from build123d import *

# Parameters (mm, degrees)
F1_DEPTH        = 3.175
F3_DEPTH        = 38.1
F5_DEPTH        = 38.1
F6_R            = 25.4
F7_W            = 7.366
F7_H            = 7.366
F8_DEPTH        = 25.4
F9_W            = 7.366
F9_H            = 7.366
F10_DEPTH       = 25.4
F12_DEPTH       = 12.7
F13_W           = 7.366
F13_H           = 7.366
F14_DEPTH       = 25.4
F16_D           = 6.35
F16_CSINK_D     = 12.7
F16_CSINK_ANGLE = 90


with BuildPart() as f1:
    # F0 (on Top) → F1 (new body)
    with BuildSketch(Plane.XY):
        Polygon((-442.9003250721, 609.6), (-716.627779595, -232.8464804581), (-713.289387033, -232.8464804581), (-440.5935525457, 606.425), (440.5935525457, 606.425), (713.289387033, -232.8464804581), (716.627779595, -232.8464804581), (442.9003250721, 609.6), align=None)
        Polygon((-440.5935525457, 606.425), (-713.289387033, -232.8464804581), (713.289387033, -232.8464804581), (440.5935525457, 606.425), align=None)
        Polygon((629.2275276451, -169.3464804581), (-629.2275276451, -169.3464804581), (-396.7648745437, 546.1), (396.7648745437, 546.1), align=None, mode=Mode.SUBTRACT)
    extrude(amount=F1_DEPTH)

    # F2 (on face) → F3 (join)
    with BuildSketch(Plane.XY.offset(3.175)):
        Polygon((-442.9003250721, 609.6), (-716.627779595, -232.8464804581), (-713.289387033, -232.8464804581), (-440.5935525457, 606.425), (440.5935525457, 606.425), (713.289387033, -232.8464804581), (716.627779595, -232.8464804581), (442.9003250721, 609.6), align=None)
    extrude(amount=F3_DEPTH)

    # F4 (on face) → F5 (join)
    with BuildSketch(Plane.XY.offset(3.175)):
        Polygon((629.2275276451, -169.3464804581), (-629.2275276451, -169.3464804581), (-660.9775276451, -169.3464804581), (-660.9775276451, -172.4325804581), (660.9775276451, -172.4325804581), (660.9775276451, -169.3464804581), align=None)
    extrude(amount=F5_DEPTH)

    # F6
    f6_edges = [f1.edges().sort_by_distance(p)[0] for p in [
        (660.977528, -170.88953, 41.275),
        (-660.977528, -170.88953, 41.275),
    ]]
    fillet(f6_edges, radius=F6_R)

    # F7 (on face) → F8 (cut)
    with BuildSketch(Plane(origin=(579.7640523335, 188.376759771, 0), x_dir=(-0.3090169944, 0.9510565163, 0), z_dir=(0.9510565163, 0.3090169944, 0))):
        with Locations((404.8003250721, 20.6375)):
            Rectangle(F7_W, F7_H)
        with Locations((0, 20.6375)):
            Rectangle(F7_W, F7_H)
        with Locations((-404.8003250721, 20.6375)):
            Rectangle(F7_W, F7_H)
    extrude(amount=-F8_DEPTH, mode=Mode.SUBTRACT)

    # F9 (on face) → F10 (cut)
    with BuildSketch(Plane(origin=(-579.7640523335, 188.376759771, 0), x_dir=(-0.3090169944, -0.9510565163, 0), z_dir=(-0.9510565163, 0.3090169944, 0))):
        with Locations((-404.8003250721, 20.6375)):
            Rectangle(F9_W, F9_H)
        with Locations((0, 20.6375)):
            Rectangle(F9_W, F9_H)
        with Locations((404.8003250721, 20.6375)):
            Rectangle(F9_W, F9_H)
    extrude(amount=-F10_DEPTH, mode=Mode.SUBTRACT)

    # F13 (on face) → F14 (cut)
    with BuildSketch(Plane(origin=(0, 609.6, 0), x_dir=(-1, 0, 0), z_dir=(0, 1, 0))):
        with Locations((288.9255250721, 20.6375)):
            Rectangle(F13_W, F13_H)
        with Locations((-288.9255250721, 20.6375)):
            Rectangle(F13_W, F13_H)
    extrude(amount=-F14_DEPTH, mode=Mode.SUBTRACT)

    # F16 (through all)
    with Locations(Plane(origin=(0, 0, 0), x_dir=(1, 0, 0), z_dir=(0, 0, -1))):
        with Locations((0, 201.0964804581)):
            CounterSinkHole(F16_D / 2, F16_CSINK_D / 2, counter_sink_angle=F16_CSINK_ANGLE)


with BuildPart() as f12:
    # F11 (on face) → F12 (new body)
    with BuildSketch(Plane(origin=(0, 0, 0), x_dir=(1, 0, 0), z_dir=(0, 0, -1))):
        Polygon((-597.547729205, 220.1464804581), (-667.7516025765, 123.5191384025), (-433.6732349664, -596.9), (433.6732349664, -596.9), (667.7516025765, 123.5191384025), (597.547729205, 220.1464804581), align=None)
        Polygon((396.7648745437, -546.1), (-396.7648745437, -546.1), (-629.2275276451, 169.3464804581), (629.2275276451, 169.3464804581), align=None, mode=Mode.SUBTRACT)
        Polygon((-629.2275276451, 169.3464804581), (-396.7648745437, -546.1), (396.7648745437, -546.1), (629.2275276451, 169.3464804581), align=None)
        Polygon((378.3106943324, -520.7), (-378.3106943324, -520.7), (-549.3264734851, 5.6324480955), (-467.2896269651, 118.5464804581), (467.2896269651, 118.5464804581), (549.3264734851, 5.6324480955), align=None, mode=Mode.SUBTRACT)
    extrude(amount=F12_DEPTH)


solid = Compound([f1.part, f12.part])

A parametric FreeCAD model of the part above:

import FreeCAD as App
import Part
import Sketcher
from FreeCAD import Vector
Q = App.Units.Quantity


def edges_at(feature, points):
    """Names of the edges that pass closest to the given points."""
    edges = feature.Shape.Edges
    near = lambda p: min(range(len(edges)), key=lambda i: edges[i].distToShape(Part.Vertex(*p))[0])
    return sorted({f"Edge{near(p) + 1}" for p in points})

doc = App.newDocument("Part")
body = doc.addObject("PartDesign::Body", "Body")

# Sketch on XY plane
sketch1 = body.newObject("Sketcher::SketchObject", "Sketch")
sketch1.AttachmentSupport = (doc.getObject("XY_Plane"), [""])
sketch1.MapMode = "FlatFace"
sketch1.addGeometry([
    Part.LineSegment(Vector(-442.900325, 609.6, 0), Vector(-716.62778, -232.84648, 0)),  # 0
    Part.LineSegment(Vector(-716.62778, -232.84648, 0), Vector(716.62778, -232.84648, 0)),  # 1
    Part.LineSegment(Vector(716.62778, -232.84648, 0), Vector(442.900325, 609.6, 0)),  # 2
    Part.LineSegment(Vector(442.900325, 609.6, 0), Vector(-442.900325, 609.6, 0)),  # 3
    Part.LineSegment(Vector(396.764875, 546.1, 0), Vector(629.227528, -169.34648, 0)),  # 4
    Part.LineSegment(Vector(629.227528, -169.34648, 0), Vector(-629.227528, -169.34648, 0)),  # 5
    Part.LineSegment(Vector(-629.227528, -169.34648, 0), Vector(-396.764875, 546.1, 0)),  # 6
    Part.LineSegment(Vector(-396.764875, 546.1, 0), Vector(396.764875, 546.1, 0)),  # 7
], False)
sketch1.addConstraint([
    Sketcher.Constraint("Coincident", 0, 2, 1, 1),
    Sketcher.Constraint("Coincident", 1, 2, 2, 1),
    Sketcher.Constraint("Coincident", 2, 2, 3, 1),
    Sketcher.Constraint("Coincident", 3, 2, 0, 1),
    Sketcher.Constraint("Coincident", 4, 2, 5, 1),
    Sketcher.Constraint("Coincident", 5, 2, 6, 1),
    Sketcher.Constraint("Coincident", 6, 2, 7, 1),
    Sketcher.Constraint("Coincident", 7, 2, 4, 1),
    Sketcher.Constraint("Horizontal", 1),
    Sketcher.Constraint("Horizontal", 3),
    Sketcher.Constraint("Horizontal", 5),
    Sketcher.Constraint("Horizontal", 7),
    Sketcher.Constraint("Parallel", 2, 4),
    Sketcher.Constraint("Parallel", 0, 6),
    Sketcher.Constraint("Equal", 0, 2),
    Sketcher.Constraint("DistanceY", -1, 1, 2, 2, Q("24 in")),
    Sketcher.Constraint("Angle", 0, Q("-108 deg")),
    Sketcher.Constraint("DistanceY", -1, 1, 6, 2, Q("21.5 in")),
    Sketcher.Constraint("DistanceY", 1, 2, 4, 2, Q("2.5 in")),
    Sketcher.Constraint("DistanceX", 1, 1, 1, 2, 1433.255559),
    Sketcher.Constraint("DistanceX", 3, 2, 3, 1, 885.80065),
    Sketcher.Constraint("DistanceX", 7, 1, 7, 2, 793.529749),
    Sketcher.Constraint("DistanceX", 6, 2, 2, 2, 839.6652),
    Sketcher.Constraint("DistanceX", 0, 2, -1, 1, 716.62778),
])
pad1 = body.newObject("PartDesign::Pad", "Pad")
pad1.Profile = sketch1
pad1.Length = Q("0.125 in")

# Sketch on XY plane
sketch2 = body.newObject("Sketcher::SketchObject", "Sketch001")
sketch2.AttachmentSupport = (doc.getObject("XY_Plane"), [""])
sketch2.MapMode = "FlatFace"
sketch2.AttachmentOffset = App.Placement(Vector(0, 0, 0.125 * 25.4), App.Rotation())
sketch2.addGeometry([
    Part.LineSegment(Vector(-442.900325, 609.6, 0), Vector(-716.62778, -232.84648, 0)),  # 0
    Part.LineSegment(Vector(-716.62778, -232.84648, 0), Vector(-713.289387, -232.84648, 0)),  # 1
    Part.LineSegment(Vector(-713.289387, -232.84648, 0), Vector(-440.593553, 606.425, 0)),  # 2
    Part.LineSegment(Vector(-440.593553, 606.425, 0), Vector(440.593553, 606.425, 0)),  # 3
    Part.LineSegment(Vector(440.593553, 606.425, 0), Vector(713.289387, -232.84648, 0)),  # 4
    Part.LineSegment(Vector(713.289387, -232.84648, 0), Vector(716.62778, -232.84648, 0)),  # 5
    Part.LineSegment(Vector(716.62778, -232.84648, 0), Vector(442.900325, 609.6, 0)),  # 6
    Part.LineSegment(Vector(442.900325, 609.6, 0), Vector(-442.900325, 609.6, 0)),  # 7
], False)
sketch2.addConstraint([
    Sketcher.Constraint("Coincident", 0, 2, 1, 1),
    Sketcher.Constraint("Coincident", 1, 2, 2, 1),
    Sketcher.Constraint("Coincident", 2, 2, 3, 1),
    Sketcher.Constraint("Coincident", 3, 2, 4, 1),
    Sketcher.Constraint("Coincident", 4, 2, 5, 1),
    Sketcher.Constraint("Coincident", 5, 2, 6, 1),
    Sketcher.Constraint("Coincident", 6, 2, 7, 1),
    Sketcher.Constraint("Coincident", 7, 2, 0, 1),
    Sketcher.Constraint("Horizontal", 1),
    Sketcher.Constraint("Horizontal", 3),
    Sketcher.Constraint("Horizontal", 5),
    Sketcher.Constraint("Horizontal", 7),
    Sketcher.Constraint("Symmetric", 1, 2, 4, 2, -2),
    Sketcher.Constraint("Parallel", 0, 2),
    Sketcher.Constraint("Parallel", 4, 6),
    Sketcher.Constraint("Equal", 1, 5),
    Sketcher.Constraint("Equal", 2, 4),
    Sketcher.Constraint("DistanceY", -1, 1, 6, 2, Q("24 in")),
    Sketcher.Constraint("Angle", 0, Q("-108 deg")),
    Sketcher.Constraint("DistanceY", -1, 1, 2, 2, Q("23.875 in")),
    Sketcher.Constraint("DistanceX", 7, 2, 7, 1, 885.80065),
    Sketcher.Constraint("Distance", 0, 885.80065),
    Sketcher.Constraint("DistanceX", 1, 1, 1, 2, 3.338393),
])
pad2 = body.newObject("PartDesign::Pad", "Pad001")
pad2.Profile = sketch2
pad2.Length = Q("1.5 in")

# Sketch on XY plane
sketch3 = body.newObject("Sketcher::SketchObject", "Sketch002")
sketch3.AttachmentSupport = (doc.getObject("XY_Plane"), [""])
sketch3.MapMode = "FlatFace"
sketch3.AttachmentOffset = App.Placement(Vector(0, 0, 0.125 * 25.4), App.Rotation())
sketch3.addGeometry([
    Part.LineSegment(Vector(-660.977528, -169.34648, 0), Vector(-660.977528, -172.43258, 0)),
    Part.LineSegment(Vector(-660.977528, -172.43258, 0), Vector(660.977528, -172.43258, 0)),
    Part.LineSegment(Vector(660.977528, -172.43258, 0), Vector(660.977528, -169.34648, 0)),
    Part.LineSegment(Vector(660.977528, -169.34648, 0), Vector(-660.977528, -169.34648, 0)),
], False)
sketch3.addConstraint([
    Sketcher.Constraint("Coincident", 0, 2, 1, 1),
    Sketcher.Constraint("Coincident", 1, 2, 2, 1),
    Sketcher.Constraint("Coincident", 2, 2, 3, 1),
    Sketcher.Constraint("Coincident", 3, 2, 0, 1),
    Sketcher.Constraint("Vertical", 0),
    Sketcher.Constraint("Horizontal", 1),
    Sketcher.Constraint("Vertical", 2),
    Sketcher.Constraint("Horizontal", 3),
    Sketcher.Constraint("DistanceY", 0, 2, 0, 1, Q("0.1215 in")),
    Sketcher.Constraint("DistanceX", 1, 1, 1, 2, 1321.955055),
    Sketcher.Constraint("DistanceY", 0, 2, -1, 1, 172.43258),
    Sketcher.Constraint("DistanceX", 0, 2, -1, 1, 660.977528),
])
pad3 = body.newObject("PartDesign::Pad", "Pad002")
pad3.Profile = sketch3
pad3.Length = Q("1.5 in")
doc.recompute()

fillet = body.newObject("PartDesign::Fillet", "Fillet")
fillet.Base = (pad3, edges_at(pad3, [(660.978, -170.89, 41.275), (-660.978, -170.89, 41.275)]))
fillet.Radius = Q("1 in")

# Sketch on an angled plane
sketch4 = body.newObject("Sketcher::SketchObject", "Sketch003")
sketch4.Placement = App.Placement(Vector(579.764052, 188.37676, 0), App.Rotation(Vector(-0.309016994, 0.951056516, 0), Vector(0, 0, 0.999999999), Vector(0.951056516, 0.309016994, 0), "ZXY"))
sketch4.addGeometry([
    Part.LineSegment(Vector(401.117325, 24.3205, 0), Vector(401.117325, 16.9545, 0)),  # 0
    Part.LineSegment(Vector(401.117325, 16.9545, 0), Vector(408.483325, 16.9545, 0)),  # 1
    Part.LineSegment(Vector(408.483325, 16.9545, 0), Vector(408.483325, 24.3205, 0)),  # 2
    Part.LineSegment(Vector(408.483325, 24.3205, 0), Vector(401.117325, 24.3205, 0)),  # 3
    Part.LineSegment(Vector(-3.683, 24.3205, 0), Vector(-3.683, 16.9545, 0)),  # 4
    Part.LineSegment(Vector(-3.683, 16.9545, 0), Vector(3.683, 16.9545, 0)),  # 5
    Part.LineSegment(Vector(3.683, 16.9545, 0), Vector(3.683, 24.3205, 0)),  # 6
    Part.LineSegment(Vector(3.683, 24.3205, 0), Vector(-3.683, 24.3205, 0)),  # 7
    Part.LineSegment(Vector(-408.483325, 24.3205, 0), Vector(-408.483325, 16.9545, 0)),  # 8
    Part.LineSegment(Vector(-408.483325, 16.9545, 0), Vector(-401.117325, 16.9545, 0)),  # 9
    Part.LineSegment(Vector(-401.117325, 16.9545, 0), Vector(-401.117325, 24.3205, 0)),  # 10
    Part.LineSegment(Vector(-401.117325, 24.3205, 0), Vector(-408.483325, 24.3205, 0)),  # 11
], False)
sketch4.addConstraint([
    Sketcher.Constraint("Coincident", 0, 2, 1, 1),
    Sketcher.Constraint("Coincident", 1, 2, 2, 1),
    Sketcher.Constraint("Coincident", 2, 2, 3, 1),
    Sketcher.Constraint("Coincident", 3, 2, 0, 1),
    Sketcher.Constraint("Coincident", 4, 2, 5, 1),
    Sketcher.Constraint("Coincident", 5, 2, 6, 1),
    Sketcher.Constraint("Coincident", 6, 2, 7, 1),
    Sketcher.Constraint("Coincident", 7, 2, 4, 1),
    Sketcher.Constraint("Coincident", 8, 2, 9, 1),
    Sketcher.Constraint("Coincident", 9, 2, 10, 1),
    Sketcher.Constraint("Coincident", 10, 2, 11, 1),
    Sketcher.Constraint("Coincident", 11, 2, 8, 1),
    Sketcher.Constraint("Vertical", 0),
    Sketcher.Constraint("Horizontal", 1),
    Sketcher.Constraint("Vertical", 2),
    Sketcher.Constraint("Horizontal", 3),
    Sketcher.Constraint("Vertical", 4),
    Sketcher.Constraint("Horizontal", 5),
    Sketcher.Constraint("Vertical", 6),
    Sketcher.Constraint("Horizontal", 7),
    Sketcher.Constraint("Vertical", 8),
    Sketcher.Constraint("Horizontal", 9),
    Sketcher.Constraint("Vertical", 10),
    Sketcher.Constraint("Horizontal", 11),
    Sketcher.Constraint("Symmetric", 1, 2, 8, 2, -2),
    Sketcher.Constraint("Symmetric", 3, 2, 10, 2, -2),
    Sketcher.Constraint("Horizontal", 1, 2, 4, 2),
    Sketcher.Constraint("Horizontal", 3, 2, 6, 2),
    Sketcher.Constraint("Equal", 3, 5),
    Sketcher.Constraint("Equal", 11, 0),
    Sketcher.Constraint("DistanceX", 1, 1, 1, 2, Q("0.29 in")),
    Sketcher.Constraint("DistanceX", 4, 2, -1, 1, Q("0.145 in")),
    Sketcher.Constraint("DistanceY", -1, 1, 0, 2, Q("0.6675 in")),
    Sketcher.Constraint("DistanceX", 8, 2, 0, 2, 809.60065),
])
pocket1 = body.newObject("PartDesign::Pocket", "Pocket")
pocket1.Profile = sketch4
pocket1.Length = Q("1 in")

# Sketch on an angled plane
sketch5 = body.newObject("Sketcher::SketchObject", "Sketch004")
sketch5.Placement = App.Placement(Vector(-579.764052, 188.37676, 0), App.Rotation(Vector(-0.309016994, -0.951056516, 0), Vector(0, 0, 0.999999999), Vector(-0.951056516, 0.309016994, 0), "ZXY"))
sketch5.addGeometry([
    Part.LineSegment(Vector(-408.483325, 24.3205, 0), Vector(-408.483325, 16.9545, 0)),  # 0
    Part.LineSegment(Vector(-408.483325, 16.9545, 0), Vector(-401.117325, 16.9545, 0)),  # 1
    Part.LineSegment(Vector(-401.117325, 16.9545, 0), Vector(-401.117325, 24.3205, 0)),  # 2
    Part.LineSegment(Vector(-401.117325, 24.3205, 0), Vector(-408.483325, 24.3205, 0)),  # 3
    Part.LineSegment(Vector(-3.683, 24.3205, 0), Vector(-3.683, 16.9545, 0)),  # 4
    Part.LineSegment(Vector(-3.683, 16.9545, 0), Vector(3.683, 16.9545, 0)),  # 5
    Part.LineSegment(Vector(3.683, 16.9545, 0), Vector(3.683, 24.3205, 0)),  # 6
    Part.LineSegment(Vector(3.683, 24.3205, 0), Vector(-3.683, 24.3205, 0)),  # 7
    Part.LineSegment(Vector(401.117325, 24.3205, 0), Vector(401.117325, 16.9545, 0)),  # 8
    Part.LineSegment(Vector(401.117325, 16.9545, 0), Vector(408.483325, 16.9545, 0)),  # 9
    Part.LineSegment(Vector(408.483325, 16.9545, 0), Vector(408.483325, 24.3205, 0)),  # 10
    Part.LineSegment(Vector(408.483325, 24.3205, 0), Vector(401.117325, 24.3205, 0)),  # 11
], False)
sketch5.addConstraint([
    Sketcher.Constraint("Coincident", 0, 2, 1, 1),
    Sketcher.Constraint("Coincident", 1, 2, 2, 1),
    Sketcher.Constraint("Coincident", 2, 2, 3, 1),
    Sketcher.Constraint("Coincident", 3, 2, 0, 1),
    Sketcher.Constraint("Coincident", 4, 2, 5, 1),
    Sketcher.Constraint("Coincident", 5, 2, 6, 1),
    Sketcher.Constraint("Coincident", 6, 2, 7, 1),
    Sketcher.Constraint("Coincident", 7, 2, 4, 1),
    Sketcher.Constraint("Coincident", 8, 2, 9, 1),
    Sketcher.Constraint("Coincident", 9, 2, 10, 1),
    Sketcher.Constraint("Coincident", 10, 2, 11, 1),
    Sketcher.Constraint("Coincident", 11, 2, 8, 1),
    Sketcher.Constraint("Vertical", 0),
    Sketcher.Constraint("Horizontal", 1),
    Sketcher.Constraint("Vertical", 2),
    Sketcher.Constraint("Horizontal", 3),
    Sketcher.Constraint("Vertical", 4),
    Sketcher.Constraint("Horizontal", 5),
    Sketcher.Constraint("Vertical", 6),
    Sketcher.Constraint("Horizontal", 7),
    Sketcher.Constraint("Vertical", 8),
    Sketcher.Constraint("Horizontal", 9),
    Sketcher.Constraint("Vertical", 10),
    Sketcher.Constraint("Horizontal", 11),
    Sketcher.Constraint("Symmetric", 1, 2, 8, 2, -2),
    Sketcher.Constraint("Symmetric", 3, 2, 10, 2, -2),
    Sketcher.Constraint("Horizontal", 1, 2, 4, 2),
    Sketcher.Constraint("Horizontal", 3, 2, 6, 2),
    Sketcher.Constraint("Equal", 3, 5),
    Sketcher.Constraint("Equal", 11, 0),
    Sketcher.Constraint("DistanceX", 1, 1, 1, 2, Q("0.29 in")),
    Sketcher.Constraint("DistanceX", 4, 2, -1, 1, Q("0.145 in")),
    Sketcher.Constraint("DistanceY", -1, 1, 0, 2, Q("0.6675 in")),
    Sketcher.Constraint("DistanceX", 1, 2, 8, 2, 802.23465),
])
pocket2 = body.newObject("PartDesign::Pocket", "Pocket001")
pocket2.Profile = sketch5
pocket2.Length = Q("1 in")

# Sketch on XZ plane
sketch6 = body.newObject("Sketcher::SketchObject", "Sketch005")
sketch6.AttachmentSupport = (doc.getObject("XZ_Plane"), [""])
sketch6.MapMode = "FlatFace"
sketch6.AttachmentOffset = App.Placement(Vector(0, 0, -24 * 25.4), App.Rotation())
sketch6.addGeometry([
    Part.LineSegment(Vector(-285.242525, 24.3205, 0), Vector(-285.242525, 16.9545, 0)),  # 0
    Part.LineSegment(Vector(-285.242525, 16.9545, 0), Vector(-292.608525, 16.9545, 0)),  # 1
    Part.LineSegment(Vector(-292.608525, 16.9545, 0), Vector(-292.608525, 24.3205, 0)),  # 2
    Part.LineSegment(Vector(-292.608525, 24.3205, 0), Vector(-285.242525, 24.3205, 0)),  # 3
    Part.LineSegment(Vector(292.608525, 24.3205, 0), Vector(292.608525, 16.9545, 0)),  # 4
    Part.LineSegment(Vector(292.608525, 16.9545, 0), Vector(285.242525, 16.9545, 0)),  # 5
    Part.LineSegment(Vector(285.242525, 16.9545, 0), Vector(285.242525, 24.3205, 0)),  # 6
    Part.LineSegment(Vector(285.242525, 24.3205, 0), Vector(292.608525, 24.3205, 0)),  # 7
], False)
sketch6.addConstraint([
    Sketcher.Constraint("Coincident", 0, 2, 1, 1),
    Sketcher.Constraint("Coincident", 1, 2, 2, 1),
    Sketcher.Constraint("Coincident", 2, 2, 3, 1),
    Sketcher.Constraint("Coincident", 3, 2, 0, 1),
    Sketcher.Constraint("Coincident", 4, 2, 5, 1),
    Sketcher.Constraint("Coincident", 5, 2, 6, 1),
    Sketcher.Constraint("Coincident", 6, 2, 7, 1),
    Sketcher.Constraint("Coincident", 7, 2, 4, 1),
    Sketcher.Constraint("Vertical", 0),
    Sketcher.Constraint("Horizontal", 1),
    Sketcher.Constraint("Vertical", 2),
    Sketcher.Constraint("Horizontal", 3),
    Sketcher.Constraint("Vertical", 4),
    Sketcher.Constraint("Horizontal", 5),
    Sketcher.Constraint("Vertical", 6),
    Sketcher.Constraint("Horizontal", 7),
    Sketcher.Constraint("Symmetric", 1, 2, 4, 2, -2),
    Sketcher.Constraint("Symmetric", 3, 2, 6, 2, -2),
    Sketcher.Constraint("Equal", 7, 0),
    Sketcher.Constraint("DistanceX", 1, 2, 1, 1, Q("0.29 in")),
    Sketcher.Constraint("DistanceY", -1, 1, 0, 2, Q("0.6675 in")),
    Sketcher.Constraint("DistanceX", 0, 2, 4, 2, 577.85105),
])
pocket3 = body.newObject("PartDesign::Pocket", "Pocket002")
pocket3.Profile = sketch6
pocket3.Length = Q("1 in")
pocket3.Reversed = True

# Sketch on XY plane
sketch7 = body.newObject("Sketcher::SketchObject", "Sketch006")
sketch7.AttachmentSupport = (doc.getObject("XY_Plane"), [""])
sketch7.MapMode = "FlatFace"
sketch7.addGeometry(Part.Circle(Vector(0, -201.09648, 0), Vector(0, 0, 1), 3.175), False)
sketch7.addConstraint([
    Sketcher.Constraint("PointOnObject", 0, 3, -2),
    Sketcher.Constraint("Diameter", 0, Q("0.25 in")),
    Sketcher.Constraint("DistanceY", 0, 3, -1, 1, 201.09648),
])
doc.recompute()
hole = body.newObject("PartDesign::Hole", "Hole")
hole.Profile = sketch7
hole.ThreadType = "None"
hole.Diameter = Q("0.25 in")
hole.DepthType = "ThroughAll"
hole.HoleCutType = "Countersink"
hole.HoleCutDiameter = Q("0.5 in")
hole.HoleCutCountersinkAngle = 90
hole.Reversed = True
body2 = doc.addObject("PartDesign::Body", "Body001")

# Sketch on XY plane
sketch8 = body2.newObject("Sketcher::SketchObject", "Sketch007")
sketch8.AttachmentSupport = (doc.getObject("XY_Plane001"), [""])
sketch8.MapMode = "FlatFace"
sketch8.addGeometry([
    Part.LineSegment(Vector(-597.547729, -220.14648, 0), Vector(-667.751603, -123.519138, 0)),  # 0
    Part.LineSegment(Vector(-667.751603, -123.519138, 0), Vector(-433.673235, 596.9, 0)),  # 1
    Part.LineSegment(Vector(-433.673235, 596.9, 0), Vector(433.673235, 596.9, 0)),  # 2
    Part.LineSegment(Vector(433.673235, 596.9, 0), Vector(667.751603, -123.519138, 0)),  # 3
    Part.LineSegment(Vector(667.751603, -123.519138, 0), Vector(597.547729, -220.14648, 0)),  # 4
    Part.LineSegment(Vector(597.547729, -220.14648, 0), Vector(-597.547729, -220.14648, 0)),  # 5
    Part.LineSegment(Vector(549.326473, -5.632448, 0), Vector(378.310694, 520.7, 0)),  # 6
    Part.LineSegment(Vector(378.310694, 520.7, 0), Vector(-378.310694, 520.7, 0)),  # 7
    Part.LineSegment(Vector(-378.310694, 520.7, 0), Vector(-549.326473, -5.632448, 0)),  # 8
    Part.LineSegment(Vector(-549.326473, -5.632448, 0), Vector(-467.289627, -118.54648, 0)),  # 9
    Part.LineSegment(Vector(-467.289627, -118.54648, 0), Vector(467.289627, -118.54648, 0)),  # 10
    Part.LineSegment(Vector(467.289627, -118.54648, 0), Vector(549.326473, -5.632448, 0)),  # 11
], False)
sketch8.addConstraint([
    Sketcher.Constraint("Coincident", 0, 2, 1, 1),
    Sketcher.Constraint("Coincident", 1, 2, 2, 1),
    Sketcher.Constraint("Coincident", 2, 2, 3, 1),
    Sketcher.Constraint("Coincident", 3, 2, 4, 1),
    Sketcher.Constraint("Coincident", 4, 2, 5, 1),
    Sketcher.Constraint("Coincident", 5, 2, 0, 1),
    Sketcher.Constraint("Coincident", 6, 2, 7, 1),
    Sketcher.Constraint("Coincident", 7, 2, 8, 1),
    Sketcher.Constraint("Coincident", 8, 2, 9, 1),
    Sketcher.Constraint("Coincident", 9, 2, 10, 1),
    Sketcher.Constraint("Coincident", 10, 2, 11, 1),
    Sketcher.Constraint("Coincident", 11, 2, 6, 1),
    Sketcher.Constraint("Horizontal", 2),
    Sketcher.Constraint("Horizontal", 5),
    Sketcher.Constraint("Horizontal", 7),
    Sketcher.Constraint("Horizontal", 10),
    Sketcher.Constraint("Symmetric", 0, 2, 3, 2, -2),
    Sketcher.Constraint("Symmetric", 8, 2, 11, 2, -2),
    Sketcher.Constraint("Parallel", 3, 6),
    Sketcher.Constraint("Parallel", 1, 8),
    Sketcher.Constraint("Parallel", 0, 9),
    Sketcher.Constraint("Parallel", 4, 11),
    Sketcher.Constraint("Equal", 1, 3),
    Sketcher.Constraint("Equal", 0, 4),
    Sketcher.Constraint("Angle", 0, Q("126 deg")),
    Sketcher.Constraint("Angle", 1, Q("72 deg")),
    Sketcher.Constraint("DistanceY", 6, 2, 2, 2, Q("3 in")),
    Sketcher.Constraint("DistanceY", 5, 2, 9, 2, Q("4 in")),
    Sketcher.Constraint("DistanceY", -1, 1, 1, 2, Q("23.5 in")),
    Sketcher.Constraint("DistanceX", 2, 1, 2, 2, 867.34647),
    Sketcher.Constraint("DistanceX", 5, 2, 5, 1, 1195.095458),
    Sketcher.Constraint("DistanceX", 7, 2, 7, 1, 756.621389),
    Sketcher.Constraint("Distance", 1, 757.49351),
    Sketcher.Constraint("Distance", 9, 139.56942),
])
pad4 = body2.newObject("PartDesign::Pad", "Pad003")
pad4.Profile = sketch8
pad4.Length = Q("0.5 in")
pad4.Reversed = True

doc.recompute()
